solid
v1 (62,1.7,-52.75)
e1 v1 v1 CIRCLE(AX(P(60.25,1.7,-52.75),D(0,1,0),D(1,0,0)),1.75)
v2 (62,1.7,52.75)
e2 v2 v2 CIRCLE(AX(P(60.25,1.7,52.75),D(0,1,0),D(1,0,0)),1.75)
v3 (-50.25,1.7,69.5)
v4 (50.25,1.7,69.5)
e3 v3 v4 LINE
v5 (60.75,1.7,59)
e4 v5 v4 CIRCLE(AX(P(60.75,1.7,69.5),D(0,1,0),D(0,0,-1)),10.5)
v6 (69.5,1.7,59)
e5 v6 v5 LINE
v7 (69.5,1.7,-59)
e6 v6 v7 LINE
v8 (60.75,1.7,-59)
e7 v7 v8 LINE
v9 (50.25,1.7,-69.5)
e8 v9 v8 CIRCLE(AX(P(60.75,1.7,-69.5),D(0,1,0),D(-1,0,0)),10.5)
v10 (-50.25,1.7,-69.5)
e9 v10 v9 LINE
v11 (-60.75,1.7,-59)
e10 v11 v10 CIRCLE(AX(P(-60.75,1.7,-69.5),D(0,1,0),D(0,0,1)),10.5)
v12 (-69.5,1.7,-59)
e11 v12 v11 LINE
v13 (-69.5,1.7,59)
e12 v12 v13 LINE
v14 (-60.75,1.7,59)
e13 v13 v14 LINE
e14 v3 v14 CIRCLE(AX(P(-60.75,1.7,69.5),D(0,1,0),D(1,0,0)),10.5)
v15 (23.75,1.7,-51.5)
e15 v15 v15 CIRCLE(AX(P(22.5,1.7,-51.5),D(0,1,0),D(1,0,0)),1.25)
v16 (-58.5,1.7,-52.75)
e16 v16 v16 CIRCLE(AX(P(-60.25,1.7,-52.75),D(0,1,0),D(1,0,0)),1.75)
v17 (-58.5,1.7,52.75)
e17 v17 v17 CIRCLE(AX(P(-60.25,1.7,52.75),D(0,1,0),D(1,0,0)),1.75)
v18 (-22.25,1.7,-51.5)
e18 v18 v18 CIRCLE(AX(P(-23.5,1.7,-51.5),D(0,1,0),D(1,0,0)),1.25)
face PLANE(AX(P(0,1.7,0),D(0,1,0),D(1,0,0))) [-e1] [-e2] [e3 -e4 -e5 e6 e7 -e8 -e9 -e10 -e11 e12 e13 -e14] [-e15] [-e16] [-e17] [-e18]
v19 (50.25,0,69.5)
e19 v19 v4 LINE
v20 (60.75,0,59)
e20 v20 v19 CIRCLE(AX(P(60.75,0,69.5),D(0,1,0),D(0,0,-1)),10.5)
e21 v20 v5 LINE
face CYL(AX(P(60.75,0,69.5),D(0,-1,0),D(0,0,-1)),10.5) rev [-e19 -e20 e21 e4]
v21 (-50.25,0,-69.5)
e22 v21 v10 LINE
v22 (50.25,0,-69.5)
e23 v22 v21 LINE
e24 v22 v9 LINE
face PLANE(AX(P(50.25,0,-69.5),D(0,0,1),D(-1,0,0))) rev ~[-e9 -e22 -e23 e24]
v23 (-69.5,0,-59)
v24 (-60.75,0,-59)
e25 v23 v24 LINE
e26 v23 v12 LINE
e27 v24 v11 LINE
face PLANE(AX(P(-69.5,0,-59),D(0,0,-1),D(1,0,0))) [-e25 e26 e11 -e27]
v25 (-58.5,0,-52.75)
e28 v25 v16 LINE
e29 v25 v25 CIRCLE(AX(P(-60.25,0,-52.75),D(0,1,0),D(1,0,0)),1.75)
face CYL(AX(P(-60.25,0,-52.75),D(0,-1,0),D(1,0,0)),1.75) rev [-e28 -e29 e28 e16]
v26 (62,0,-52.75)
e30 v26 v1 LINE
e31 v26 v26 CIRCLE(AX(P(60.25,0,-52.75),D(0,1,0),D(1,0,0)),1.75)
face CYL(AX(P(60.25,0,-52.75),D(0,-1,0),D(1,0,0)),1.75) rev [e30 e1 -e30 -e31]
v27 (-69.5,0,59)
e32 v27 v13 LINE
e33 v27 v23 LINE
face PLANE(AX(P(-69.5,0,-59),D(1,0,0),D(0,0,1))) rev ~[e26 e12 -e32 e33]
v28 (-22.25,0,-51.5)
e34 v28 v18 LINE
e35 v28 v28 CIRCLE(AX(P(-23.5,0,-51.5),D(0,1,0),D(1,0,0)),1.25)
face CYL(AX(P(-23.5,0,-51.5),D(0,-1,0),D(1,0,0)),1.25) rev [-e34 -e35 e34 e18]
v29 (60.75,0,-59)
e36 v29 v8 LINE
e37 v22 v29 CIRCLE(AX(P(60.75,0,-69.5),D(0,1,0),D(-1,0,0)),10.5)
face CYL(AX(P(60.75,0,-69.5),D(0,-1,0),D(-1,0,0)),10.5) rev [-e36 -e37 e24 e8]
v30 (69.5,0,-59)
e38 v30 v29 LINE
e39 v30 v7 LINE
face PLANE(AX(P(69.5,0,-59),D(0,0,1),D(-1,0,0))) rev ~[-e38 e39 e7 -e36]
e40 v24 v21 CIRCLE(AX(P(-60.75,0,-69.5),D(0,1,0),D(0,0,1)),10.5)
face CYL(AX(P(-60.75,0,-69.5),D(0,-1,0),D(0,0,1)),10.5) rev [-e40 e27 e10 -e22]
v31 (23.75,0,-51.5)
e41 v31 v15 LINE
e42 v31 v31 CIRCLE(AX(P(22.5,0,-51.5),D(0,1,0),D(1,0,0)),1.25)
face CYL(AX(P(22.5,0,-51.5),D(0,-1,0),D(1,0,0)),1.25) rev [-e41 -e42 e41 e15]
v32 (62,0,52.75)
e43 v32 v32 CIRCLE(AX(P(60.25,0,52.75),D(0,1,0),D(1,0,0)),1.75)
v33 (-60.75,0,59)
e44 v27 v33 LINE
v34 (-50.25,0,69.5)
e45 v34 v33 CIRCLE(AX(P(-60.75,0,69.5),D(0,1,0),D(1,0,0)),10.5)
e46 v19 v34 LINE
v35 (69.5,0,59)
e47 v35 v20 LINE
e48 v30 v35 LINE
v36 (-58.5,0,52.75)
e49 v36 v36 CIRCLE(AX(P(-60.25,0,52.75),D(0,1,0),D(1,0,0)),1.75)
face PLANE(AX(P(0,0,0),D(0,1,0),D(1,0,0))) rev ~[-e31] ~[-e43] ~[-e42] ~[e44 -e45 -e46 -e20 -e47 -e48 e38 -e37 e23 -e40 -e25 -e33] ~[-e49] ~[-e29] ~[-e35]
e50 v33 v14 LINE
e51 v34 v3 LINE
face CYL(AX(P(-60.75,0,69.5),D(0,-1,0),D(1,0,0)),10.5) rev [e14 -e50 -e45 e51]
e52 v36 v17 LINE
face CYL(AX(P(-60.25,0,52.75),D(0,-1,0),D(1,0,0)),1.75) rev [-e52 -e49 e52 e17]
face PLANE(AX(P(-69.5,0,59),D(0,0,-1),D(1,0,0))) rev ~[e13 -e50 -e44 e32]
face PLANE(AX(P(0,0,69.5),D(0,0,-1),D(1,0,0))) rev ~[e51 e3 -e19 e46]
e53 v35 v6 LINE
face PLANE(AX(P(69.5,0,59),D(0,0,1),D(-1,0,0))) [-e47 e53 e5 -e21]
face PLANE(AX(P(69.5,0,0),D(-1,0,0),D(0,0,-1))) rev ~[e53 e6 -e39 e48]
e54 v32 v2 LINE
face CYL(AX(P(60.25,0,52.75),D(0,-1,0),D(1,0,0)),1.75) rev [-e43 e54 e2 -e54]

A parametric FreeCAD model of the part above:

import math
import FreeCAD as App
import Part
import Sketcher

V = App.Vector

doc = App.newDocument("Part")
body = doc.addObject("PartDesign::Body", "Body")

# Sketch on XZ plane
sketch1 = doc.addObject("Sketcher::SketchObject", "Sketch")
body.addObject(sketch1)
sketch1.AttachmentSupport = (doc.XZ_Plane, [""])
sketch1.MapMode = "FlatFace"
sketch1.addGeometry([
    Part.ArcOfCircle(Part.Circle(V(60.8, -69.5, 0), V(0, 0, 1), 10.5), math.radians(90), math.radians(180)),  # 0
    Part.LineSegment(V(50.2, -69.5, 0), V(-50.2, -69.5, 0)),  # 1
    Part.ArcOfCircle(Part.Circle(V(-60.8, -69.5, 0), V(0, 0, 1), 10.5), math.radians(0), math.radians(90)),  # 2
    Part.LineSegment(V(-60.8, -59, 0), V(-69.5, -59, 0)),  # 3
    Part.LineSegment(V(-69.5, -59, 0), V(-69.5, 59, 0)),  # 4
    Part.LineSegment(V(-69.5, 59, 0), V(-60.8, 59, 0)),  # 5
    Part.ArcOfCircle(Part.Circle(V(-60.8, 69.5, 0), V(0, 0, 1), 10.5), math.radians(-90), math.radians(0)),  # 6
    Part.LineSegment(V(-50.2, 69.5, 0), V(50.2, 69.5, 0)),  # 7
    Part.ArcOfCircle(Part.Circle(V(60.8, 69.5, 0), V(0, 0, 1), 10.5), math.radians(180), math.radians(270)),  # 8
    Part.LineSegment(V(60.8, 59, 0), V(69.5, 59, 0)),  # 9
    Part.LineSegment(V(69.5, 59, 0), V(69.5, -59, 0)),  # 10
    Part.LineSegment(V(69.5, -59, 0), V(60.8, -59, 0)),  # 11
    Part.Circle(V(22.5, -51.5, 0), V(0, 0, 1), 1.2),  # 12
    Part.Circle(V(60.2, -52.8, 0), V(0, 0, 1), 1.8),  # 13
    Part.Circle(V(60.2, 52.8, 0), V(0, 0, 1), 1.8),  # 14
    Part.Circle(V(-23.5, -51.5, 0), V(0, 0, 1), 1.2),  # 15
    Part.Circle(V(-60.2, -52.8, 0), V(0, 0, 1), 1.8),  # 16
    Part.Circle(V(-60.2, 52.8, 0), V(0, 0, 1), 1.8),  # 17
], False)
sketch1.addConstraint([
    Sketcher.Constraint("Coincident", 0, 2, 1, 1),
    Sketcher.Constraint("Coincident", 1, 2, 2, 1),
    Sketcher.Constraint("Tangent", 2, 2, 3, 1),
    Sketcher.Constraint("Coincident", 3, 2, 4, 1),
    Sketcher.Constraint("Coincident", 4, 2, 5, 1),
    Sketcher.Constraint("Tangent", 5, 2, 6, 1),
    Sketcher.Constraint("Coincident", 6, 2, 7, 1),
    Sketcher.Constraint("Coincident", 7, 2, 8, 1),
    Sketcher.Constraint("Tangent", 8, 2, 9, 1),
    Sketcher.Constraint("Coincident", 9, 2, 10, 1),
    Sketcher.Constraint("Coincident", 10, 2, 11, 1),
    Sketcher.Constraint("Tangent", 11, 2, 0, 1),
    Sketcher.Constraint("Horizontal", 1),
    Sketcher.Constraint("Horizontal", 3),
    Sketcher.Constraint("Vertical", 4),
    Sketcher.Constraint("Horizontal", 5),
    Sketcher.Constraint("Horizontal", 7),
    Sketcher.Constraint("Horizontal", 9),
    Sketcher.Constraint("Vertical", 10),
    Sketcher.Constraint("Horizontal", 11),
    Sketcher.Constraint("Equal", 0, 2),
    Sketcher.Constraint("Equal", 2, 6),
    Sketcher.Constraint("Equal", 6, 8),
    Sketcher.Constraint("Equal", 13, 14),
    Sketcher.Constraint("Equal", 12, 15),
    Sketcher.Constraint("Equal", 14, 16),
    Sketcher.Constraint("Equal", 16, 17),
    Sketcher.Constraint("Symmetric", 0, 3, 6, 3, -1, 1),
    Sketcher.Constraint("Symmetric", 2, 3, 8, 3, -1, 1),
    Sketcher.Constraint("Symmetric", 14, 3, 16, 3, -1, 1),
    Sketcher.Constraint("Symmetric", 13, 3, 17, 3, -1, 1),
    Sketcher.Constraint("Symmetric", 0, 3, 2, 3, -2),
    Sketcher.Constraint("Symmetric", 13, 3, 16, 3, -2),
    Sketcher.Constraint("Horizontal", 12, 3, 15, 3),
    Sketcher.Constraint("Horizontal", 2, 3, 0, 2),
    Sketcher.Constraint("Horizontal", 8, 3, 6, 2),
    Sketcher.Constraint("Equal", 5, 9),
    Sketcher.Constraint("Diameter", 12, 2.5),
    Sketcher.Constraint("Diameter", 13, 3.5),
    Sketcher.Constraint("Radius", 0, 10.5),
    Sketcher.Constraint("DistanceY", 2, 2, -1, 1, 59.0),
    Sketcher.Constraint("DistanceY", 0, 3, 12, 3, 18.0),
    Sketcher.Constraint("DistanceX", 15, 3, 12, 3, 46.0),
    Sketcher.Constraint("DistanceX", 3, 2, 15, 3, 46.0),
    Sketcher.Constraint("DistanceX", 12, 3, 10, 2, 47.0),
    Sketcher.Constraint("DistanceX", -1, 1, 13, 3, 60.25),
    Sketcher.Constraint("DistanceY", 13, 3, -1, 1, 52.75),
    Sketcher.Constraint("DistanceX", -1, 1, 0, 2, 50.25),
])
pad1 = doc.addObject("PartDesign::Pad", "Pad")
body.addObject(pad1)
pad1.Profile = sketch1
pad1.Length = 1.7
pad1.Reversed = True

doc.recompute()
